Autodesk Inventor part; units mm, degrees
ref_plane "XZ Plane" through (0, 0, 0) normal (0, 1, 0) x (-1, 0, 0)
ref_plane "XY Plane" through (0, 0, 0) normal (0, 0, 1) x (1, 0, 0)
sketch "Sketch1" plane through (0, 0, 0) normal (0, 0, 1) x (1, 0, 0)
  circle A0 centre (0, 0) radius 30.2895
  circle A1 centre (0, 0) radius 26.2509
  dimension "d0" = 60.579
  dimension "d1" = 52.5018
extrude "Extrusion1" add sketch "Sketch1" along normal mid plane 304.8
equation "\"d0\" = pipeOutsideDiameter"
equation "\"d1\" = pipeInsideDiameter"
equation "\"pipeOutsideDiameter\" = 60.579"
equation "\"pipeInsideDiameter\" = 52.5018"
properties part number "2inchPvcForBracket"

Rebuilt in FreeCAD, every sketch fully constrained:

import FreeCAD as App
import Part
import Sketcher

V = App.Vector
Q = App.Units.Quantity

doc = App.newDocument("Part")
params = doc.addObject("Spreadsheet::Sheet", "Params")
for row, (alias, value) in enumerate([
    ("sketch1_diameter", "2.385 in"),
    ("sketch1_diameter2", "2.067 in"),
    ("pad1_length", "12 in"),
], start=1):
    params.set(f"A{row}", alias)
    params.set(f"B{row}", "=" + value)
    params.setAlias(f"B{row}", alias)

body = doc.addObject("PartDesign::Body", "Body")

# Sketch on XY plane
sketch1 = body.newObject("Sketcher::SketchObject", "Sketch")
sketch1.AttachmentSupport = (doc.getObject("XY_Plane"), [""])
sketch1.MapMode = "FlatFace"
sketch1.addGeometry([
    Part.Circle(V(0, 0, 0), V(0, 0, 1), 30),
    Part.Circle(V(0, 0, 0), V(0, 0, 1), 26),
], False)
sketch1.addConstraint([
    Sketcher.Constraint("Coincident", 0, 3, -1, 1),
    Sketcher.Constraint("Coincident", 1, 3, -1, 1),
    Sketcher.Constraint("Diameter", 0, Q("2.385 in")),
    Sketcher.Constraint("Diameter", 1, Q("2.067 in")),
])
sketch1.setExpression("Constraints[2]", "Params.sketch1_diameter")
sketch1.setExpression("Constraints[3]", "Params.sketch1_diameter2")
pad1 = body.newObject("PartDesign::Pad", "Pad")
pad1.Profile = sketch1
pad1.setExpression("Length", "Params.pad1_length")
pad1.Midplane = True

doc.recompute()
